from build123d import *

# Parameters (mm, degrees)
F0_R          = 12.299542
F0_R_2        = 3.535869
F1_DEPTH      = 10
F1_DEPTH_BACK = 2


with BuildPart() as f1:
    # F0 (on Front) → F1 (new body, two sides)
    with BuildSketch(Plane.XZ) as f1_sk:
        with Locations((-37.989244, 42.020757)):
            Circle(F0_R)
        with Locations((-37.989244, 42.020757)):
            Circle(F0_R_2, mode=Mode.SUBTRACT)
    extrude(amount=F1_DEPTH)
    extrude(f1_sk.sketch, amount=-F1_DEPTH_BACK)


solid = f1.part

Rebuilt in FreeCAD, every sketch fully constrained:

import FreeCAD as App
import Part
import Sketcher
from FreeCAD import Vector

doc = App.newDocument("Part")
body = doc.addObject("PartDesign::Body", "Body")

# Sketch on XZ plane
sketch1 = body.newObject("Sketcher::SketchObject", "Sketch")
sketch1.AttachmentSupport = (doc.getObject("XZ_Plane"), [""])
sketch1.MapMode = "FlatFace"
sketch1.addGeometry([
    Part.Circle(Vector(-37.989244, 42.020757, 0), Vector(0, 0, 1), 12.299542),
    Part.Circle(Vector(-37.989244, 42.020757, 0), Vector(0, 0, 1), 3.535869),
], False)
sketch1.addConstraint([
    Sketcher.Constraint("Coincident", 1, 3, 0, 3),
    Sketcher.Constraint("Diameter", 0, 24.599084),
    Sketcher.Constraint("Diameter", 1, 7.071738),
    Sketcher.Constraint("DistanceX", 0, 3, -1, 1, 37.989244),
    Sketcher.Constraint("DistanceY", -1, 1, 0, 3, 42.020757),
])
pad1 = body.newObject("PartDesign::Pad", "Pad")
pad1.Profile = sketch1
pad1.Type = "TwoLengths"
pad1.Length = 10
pad1.Length2 = 2

doc.recompute()
